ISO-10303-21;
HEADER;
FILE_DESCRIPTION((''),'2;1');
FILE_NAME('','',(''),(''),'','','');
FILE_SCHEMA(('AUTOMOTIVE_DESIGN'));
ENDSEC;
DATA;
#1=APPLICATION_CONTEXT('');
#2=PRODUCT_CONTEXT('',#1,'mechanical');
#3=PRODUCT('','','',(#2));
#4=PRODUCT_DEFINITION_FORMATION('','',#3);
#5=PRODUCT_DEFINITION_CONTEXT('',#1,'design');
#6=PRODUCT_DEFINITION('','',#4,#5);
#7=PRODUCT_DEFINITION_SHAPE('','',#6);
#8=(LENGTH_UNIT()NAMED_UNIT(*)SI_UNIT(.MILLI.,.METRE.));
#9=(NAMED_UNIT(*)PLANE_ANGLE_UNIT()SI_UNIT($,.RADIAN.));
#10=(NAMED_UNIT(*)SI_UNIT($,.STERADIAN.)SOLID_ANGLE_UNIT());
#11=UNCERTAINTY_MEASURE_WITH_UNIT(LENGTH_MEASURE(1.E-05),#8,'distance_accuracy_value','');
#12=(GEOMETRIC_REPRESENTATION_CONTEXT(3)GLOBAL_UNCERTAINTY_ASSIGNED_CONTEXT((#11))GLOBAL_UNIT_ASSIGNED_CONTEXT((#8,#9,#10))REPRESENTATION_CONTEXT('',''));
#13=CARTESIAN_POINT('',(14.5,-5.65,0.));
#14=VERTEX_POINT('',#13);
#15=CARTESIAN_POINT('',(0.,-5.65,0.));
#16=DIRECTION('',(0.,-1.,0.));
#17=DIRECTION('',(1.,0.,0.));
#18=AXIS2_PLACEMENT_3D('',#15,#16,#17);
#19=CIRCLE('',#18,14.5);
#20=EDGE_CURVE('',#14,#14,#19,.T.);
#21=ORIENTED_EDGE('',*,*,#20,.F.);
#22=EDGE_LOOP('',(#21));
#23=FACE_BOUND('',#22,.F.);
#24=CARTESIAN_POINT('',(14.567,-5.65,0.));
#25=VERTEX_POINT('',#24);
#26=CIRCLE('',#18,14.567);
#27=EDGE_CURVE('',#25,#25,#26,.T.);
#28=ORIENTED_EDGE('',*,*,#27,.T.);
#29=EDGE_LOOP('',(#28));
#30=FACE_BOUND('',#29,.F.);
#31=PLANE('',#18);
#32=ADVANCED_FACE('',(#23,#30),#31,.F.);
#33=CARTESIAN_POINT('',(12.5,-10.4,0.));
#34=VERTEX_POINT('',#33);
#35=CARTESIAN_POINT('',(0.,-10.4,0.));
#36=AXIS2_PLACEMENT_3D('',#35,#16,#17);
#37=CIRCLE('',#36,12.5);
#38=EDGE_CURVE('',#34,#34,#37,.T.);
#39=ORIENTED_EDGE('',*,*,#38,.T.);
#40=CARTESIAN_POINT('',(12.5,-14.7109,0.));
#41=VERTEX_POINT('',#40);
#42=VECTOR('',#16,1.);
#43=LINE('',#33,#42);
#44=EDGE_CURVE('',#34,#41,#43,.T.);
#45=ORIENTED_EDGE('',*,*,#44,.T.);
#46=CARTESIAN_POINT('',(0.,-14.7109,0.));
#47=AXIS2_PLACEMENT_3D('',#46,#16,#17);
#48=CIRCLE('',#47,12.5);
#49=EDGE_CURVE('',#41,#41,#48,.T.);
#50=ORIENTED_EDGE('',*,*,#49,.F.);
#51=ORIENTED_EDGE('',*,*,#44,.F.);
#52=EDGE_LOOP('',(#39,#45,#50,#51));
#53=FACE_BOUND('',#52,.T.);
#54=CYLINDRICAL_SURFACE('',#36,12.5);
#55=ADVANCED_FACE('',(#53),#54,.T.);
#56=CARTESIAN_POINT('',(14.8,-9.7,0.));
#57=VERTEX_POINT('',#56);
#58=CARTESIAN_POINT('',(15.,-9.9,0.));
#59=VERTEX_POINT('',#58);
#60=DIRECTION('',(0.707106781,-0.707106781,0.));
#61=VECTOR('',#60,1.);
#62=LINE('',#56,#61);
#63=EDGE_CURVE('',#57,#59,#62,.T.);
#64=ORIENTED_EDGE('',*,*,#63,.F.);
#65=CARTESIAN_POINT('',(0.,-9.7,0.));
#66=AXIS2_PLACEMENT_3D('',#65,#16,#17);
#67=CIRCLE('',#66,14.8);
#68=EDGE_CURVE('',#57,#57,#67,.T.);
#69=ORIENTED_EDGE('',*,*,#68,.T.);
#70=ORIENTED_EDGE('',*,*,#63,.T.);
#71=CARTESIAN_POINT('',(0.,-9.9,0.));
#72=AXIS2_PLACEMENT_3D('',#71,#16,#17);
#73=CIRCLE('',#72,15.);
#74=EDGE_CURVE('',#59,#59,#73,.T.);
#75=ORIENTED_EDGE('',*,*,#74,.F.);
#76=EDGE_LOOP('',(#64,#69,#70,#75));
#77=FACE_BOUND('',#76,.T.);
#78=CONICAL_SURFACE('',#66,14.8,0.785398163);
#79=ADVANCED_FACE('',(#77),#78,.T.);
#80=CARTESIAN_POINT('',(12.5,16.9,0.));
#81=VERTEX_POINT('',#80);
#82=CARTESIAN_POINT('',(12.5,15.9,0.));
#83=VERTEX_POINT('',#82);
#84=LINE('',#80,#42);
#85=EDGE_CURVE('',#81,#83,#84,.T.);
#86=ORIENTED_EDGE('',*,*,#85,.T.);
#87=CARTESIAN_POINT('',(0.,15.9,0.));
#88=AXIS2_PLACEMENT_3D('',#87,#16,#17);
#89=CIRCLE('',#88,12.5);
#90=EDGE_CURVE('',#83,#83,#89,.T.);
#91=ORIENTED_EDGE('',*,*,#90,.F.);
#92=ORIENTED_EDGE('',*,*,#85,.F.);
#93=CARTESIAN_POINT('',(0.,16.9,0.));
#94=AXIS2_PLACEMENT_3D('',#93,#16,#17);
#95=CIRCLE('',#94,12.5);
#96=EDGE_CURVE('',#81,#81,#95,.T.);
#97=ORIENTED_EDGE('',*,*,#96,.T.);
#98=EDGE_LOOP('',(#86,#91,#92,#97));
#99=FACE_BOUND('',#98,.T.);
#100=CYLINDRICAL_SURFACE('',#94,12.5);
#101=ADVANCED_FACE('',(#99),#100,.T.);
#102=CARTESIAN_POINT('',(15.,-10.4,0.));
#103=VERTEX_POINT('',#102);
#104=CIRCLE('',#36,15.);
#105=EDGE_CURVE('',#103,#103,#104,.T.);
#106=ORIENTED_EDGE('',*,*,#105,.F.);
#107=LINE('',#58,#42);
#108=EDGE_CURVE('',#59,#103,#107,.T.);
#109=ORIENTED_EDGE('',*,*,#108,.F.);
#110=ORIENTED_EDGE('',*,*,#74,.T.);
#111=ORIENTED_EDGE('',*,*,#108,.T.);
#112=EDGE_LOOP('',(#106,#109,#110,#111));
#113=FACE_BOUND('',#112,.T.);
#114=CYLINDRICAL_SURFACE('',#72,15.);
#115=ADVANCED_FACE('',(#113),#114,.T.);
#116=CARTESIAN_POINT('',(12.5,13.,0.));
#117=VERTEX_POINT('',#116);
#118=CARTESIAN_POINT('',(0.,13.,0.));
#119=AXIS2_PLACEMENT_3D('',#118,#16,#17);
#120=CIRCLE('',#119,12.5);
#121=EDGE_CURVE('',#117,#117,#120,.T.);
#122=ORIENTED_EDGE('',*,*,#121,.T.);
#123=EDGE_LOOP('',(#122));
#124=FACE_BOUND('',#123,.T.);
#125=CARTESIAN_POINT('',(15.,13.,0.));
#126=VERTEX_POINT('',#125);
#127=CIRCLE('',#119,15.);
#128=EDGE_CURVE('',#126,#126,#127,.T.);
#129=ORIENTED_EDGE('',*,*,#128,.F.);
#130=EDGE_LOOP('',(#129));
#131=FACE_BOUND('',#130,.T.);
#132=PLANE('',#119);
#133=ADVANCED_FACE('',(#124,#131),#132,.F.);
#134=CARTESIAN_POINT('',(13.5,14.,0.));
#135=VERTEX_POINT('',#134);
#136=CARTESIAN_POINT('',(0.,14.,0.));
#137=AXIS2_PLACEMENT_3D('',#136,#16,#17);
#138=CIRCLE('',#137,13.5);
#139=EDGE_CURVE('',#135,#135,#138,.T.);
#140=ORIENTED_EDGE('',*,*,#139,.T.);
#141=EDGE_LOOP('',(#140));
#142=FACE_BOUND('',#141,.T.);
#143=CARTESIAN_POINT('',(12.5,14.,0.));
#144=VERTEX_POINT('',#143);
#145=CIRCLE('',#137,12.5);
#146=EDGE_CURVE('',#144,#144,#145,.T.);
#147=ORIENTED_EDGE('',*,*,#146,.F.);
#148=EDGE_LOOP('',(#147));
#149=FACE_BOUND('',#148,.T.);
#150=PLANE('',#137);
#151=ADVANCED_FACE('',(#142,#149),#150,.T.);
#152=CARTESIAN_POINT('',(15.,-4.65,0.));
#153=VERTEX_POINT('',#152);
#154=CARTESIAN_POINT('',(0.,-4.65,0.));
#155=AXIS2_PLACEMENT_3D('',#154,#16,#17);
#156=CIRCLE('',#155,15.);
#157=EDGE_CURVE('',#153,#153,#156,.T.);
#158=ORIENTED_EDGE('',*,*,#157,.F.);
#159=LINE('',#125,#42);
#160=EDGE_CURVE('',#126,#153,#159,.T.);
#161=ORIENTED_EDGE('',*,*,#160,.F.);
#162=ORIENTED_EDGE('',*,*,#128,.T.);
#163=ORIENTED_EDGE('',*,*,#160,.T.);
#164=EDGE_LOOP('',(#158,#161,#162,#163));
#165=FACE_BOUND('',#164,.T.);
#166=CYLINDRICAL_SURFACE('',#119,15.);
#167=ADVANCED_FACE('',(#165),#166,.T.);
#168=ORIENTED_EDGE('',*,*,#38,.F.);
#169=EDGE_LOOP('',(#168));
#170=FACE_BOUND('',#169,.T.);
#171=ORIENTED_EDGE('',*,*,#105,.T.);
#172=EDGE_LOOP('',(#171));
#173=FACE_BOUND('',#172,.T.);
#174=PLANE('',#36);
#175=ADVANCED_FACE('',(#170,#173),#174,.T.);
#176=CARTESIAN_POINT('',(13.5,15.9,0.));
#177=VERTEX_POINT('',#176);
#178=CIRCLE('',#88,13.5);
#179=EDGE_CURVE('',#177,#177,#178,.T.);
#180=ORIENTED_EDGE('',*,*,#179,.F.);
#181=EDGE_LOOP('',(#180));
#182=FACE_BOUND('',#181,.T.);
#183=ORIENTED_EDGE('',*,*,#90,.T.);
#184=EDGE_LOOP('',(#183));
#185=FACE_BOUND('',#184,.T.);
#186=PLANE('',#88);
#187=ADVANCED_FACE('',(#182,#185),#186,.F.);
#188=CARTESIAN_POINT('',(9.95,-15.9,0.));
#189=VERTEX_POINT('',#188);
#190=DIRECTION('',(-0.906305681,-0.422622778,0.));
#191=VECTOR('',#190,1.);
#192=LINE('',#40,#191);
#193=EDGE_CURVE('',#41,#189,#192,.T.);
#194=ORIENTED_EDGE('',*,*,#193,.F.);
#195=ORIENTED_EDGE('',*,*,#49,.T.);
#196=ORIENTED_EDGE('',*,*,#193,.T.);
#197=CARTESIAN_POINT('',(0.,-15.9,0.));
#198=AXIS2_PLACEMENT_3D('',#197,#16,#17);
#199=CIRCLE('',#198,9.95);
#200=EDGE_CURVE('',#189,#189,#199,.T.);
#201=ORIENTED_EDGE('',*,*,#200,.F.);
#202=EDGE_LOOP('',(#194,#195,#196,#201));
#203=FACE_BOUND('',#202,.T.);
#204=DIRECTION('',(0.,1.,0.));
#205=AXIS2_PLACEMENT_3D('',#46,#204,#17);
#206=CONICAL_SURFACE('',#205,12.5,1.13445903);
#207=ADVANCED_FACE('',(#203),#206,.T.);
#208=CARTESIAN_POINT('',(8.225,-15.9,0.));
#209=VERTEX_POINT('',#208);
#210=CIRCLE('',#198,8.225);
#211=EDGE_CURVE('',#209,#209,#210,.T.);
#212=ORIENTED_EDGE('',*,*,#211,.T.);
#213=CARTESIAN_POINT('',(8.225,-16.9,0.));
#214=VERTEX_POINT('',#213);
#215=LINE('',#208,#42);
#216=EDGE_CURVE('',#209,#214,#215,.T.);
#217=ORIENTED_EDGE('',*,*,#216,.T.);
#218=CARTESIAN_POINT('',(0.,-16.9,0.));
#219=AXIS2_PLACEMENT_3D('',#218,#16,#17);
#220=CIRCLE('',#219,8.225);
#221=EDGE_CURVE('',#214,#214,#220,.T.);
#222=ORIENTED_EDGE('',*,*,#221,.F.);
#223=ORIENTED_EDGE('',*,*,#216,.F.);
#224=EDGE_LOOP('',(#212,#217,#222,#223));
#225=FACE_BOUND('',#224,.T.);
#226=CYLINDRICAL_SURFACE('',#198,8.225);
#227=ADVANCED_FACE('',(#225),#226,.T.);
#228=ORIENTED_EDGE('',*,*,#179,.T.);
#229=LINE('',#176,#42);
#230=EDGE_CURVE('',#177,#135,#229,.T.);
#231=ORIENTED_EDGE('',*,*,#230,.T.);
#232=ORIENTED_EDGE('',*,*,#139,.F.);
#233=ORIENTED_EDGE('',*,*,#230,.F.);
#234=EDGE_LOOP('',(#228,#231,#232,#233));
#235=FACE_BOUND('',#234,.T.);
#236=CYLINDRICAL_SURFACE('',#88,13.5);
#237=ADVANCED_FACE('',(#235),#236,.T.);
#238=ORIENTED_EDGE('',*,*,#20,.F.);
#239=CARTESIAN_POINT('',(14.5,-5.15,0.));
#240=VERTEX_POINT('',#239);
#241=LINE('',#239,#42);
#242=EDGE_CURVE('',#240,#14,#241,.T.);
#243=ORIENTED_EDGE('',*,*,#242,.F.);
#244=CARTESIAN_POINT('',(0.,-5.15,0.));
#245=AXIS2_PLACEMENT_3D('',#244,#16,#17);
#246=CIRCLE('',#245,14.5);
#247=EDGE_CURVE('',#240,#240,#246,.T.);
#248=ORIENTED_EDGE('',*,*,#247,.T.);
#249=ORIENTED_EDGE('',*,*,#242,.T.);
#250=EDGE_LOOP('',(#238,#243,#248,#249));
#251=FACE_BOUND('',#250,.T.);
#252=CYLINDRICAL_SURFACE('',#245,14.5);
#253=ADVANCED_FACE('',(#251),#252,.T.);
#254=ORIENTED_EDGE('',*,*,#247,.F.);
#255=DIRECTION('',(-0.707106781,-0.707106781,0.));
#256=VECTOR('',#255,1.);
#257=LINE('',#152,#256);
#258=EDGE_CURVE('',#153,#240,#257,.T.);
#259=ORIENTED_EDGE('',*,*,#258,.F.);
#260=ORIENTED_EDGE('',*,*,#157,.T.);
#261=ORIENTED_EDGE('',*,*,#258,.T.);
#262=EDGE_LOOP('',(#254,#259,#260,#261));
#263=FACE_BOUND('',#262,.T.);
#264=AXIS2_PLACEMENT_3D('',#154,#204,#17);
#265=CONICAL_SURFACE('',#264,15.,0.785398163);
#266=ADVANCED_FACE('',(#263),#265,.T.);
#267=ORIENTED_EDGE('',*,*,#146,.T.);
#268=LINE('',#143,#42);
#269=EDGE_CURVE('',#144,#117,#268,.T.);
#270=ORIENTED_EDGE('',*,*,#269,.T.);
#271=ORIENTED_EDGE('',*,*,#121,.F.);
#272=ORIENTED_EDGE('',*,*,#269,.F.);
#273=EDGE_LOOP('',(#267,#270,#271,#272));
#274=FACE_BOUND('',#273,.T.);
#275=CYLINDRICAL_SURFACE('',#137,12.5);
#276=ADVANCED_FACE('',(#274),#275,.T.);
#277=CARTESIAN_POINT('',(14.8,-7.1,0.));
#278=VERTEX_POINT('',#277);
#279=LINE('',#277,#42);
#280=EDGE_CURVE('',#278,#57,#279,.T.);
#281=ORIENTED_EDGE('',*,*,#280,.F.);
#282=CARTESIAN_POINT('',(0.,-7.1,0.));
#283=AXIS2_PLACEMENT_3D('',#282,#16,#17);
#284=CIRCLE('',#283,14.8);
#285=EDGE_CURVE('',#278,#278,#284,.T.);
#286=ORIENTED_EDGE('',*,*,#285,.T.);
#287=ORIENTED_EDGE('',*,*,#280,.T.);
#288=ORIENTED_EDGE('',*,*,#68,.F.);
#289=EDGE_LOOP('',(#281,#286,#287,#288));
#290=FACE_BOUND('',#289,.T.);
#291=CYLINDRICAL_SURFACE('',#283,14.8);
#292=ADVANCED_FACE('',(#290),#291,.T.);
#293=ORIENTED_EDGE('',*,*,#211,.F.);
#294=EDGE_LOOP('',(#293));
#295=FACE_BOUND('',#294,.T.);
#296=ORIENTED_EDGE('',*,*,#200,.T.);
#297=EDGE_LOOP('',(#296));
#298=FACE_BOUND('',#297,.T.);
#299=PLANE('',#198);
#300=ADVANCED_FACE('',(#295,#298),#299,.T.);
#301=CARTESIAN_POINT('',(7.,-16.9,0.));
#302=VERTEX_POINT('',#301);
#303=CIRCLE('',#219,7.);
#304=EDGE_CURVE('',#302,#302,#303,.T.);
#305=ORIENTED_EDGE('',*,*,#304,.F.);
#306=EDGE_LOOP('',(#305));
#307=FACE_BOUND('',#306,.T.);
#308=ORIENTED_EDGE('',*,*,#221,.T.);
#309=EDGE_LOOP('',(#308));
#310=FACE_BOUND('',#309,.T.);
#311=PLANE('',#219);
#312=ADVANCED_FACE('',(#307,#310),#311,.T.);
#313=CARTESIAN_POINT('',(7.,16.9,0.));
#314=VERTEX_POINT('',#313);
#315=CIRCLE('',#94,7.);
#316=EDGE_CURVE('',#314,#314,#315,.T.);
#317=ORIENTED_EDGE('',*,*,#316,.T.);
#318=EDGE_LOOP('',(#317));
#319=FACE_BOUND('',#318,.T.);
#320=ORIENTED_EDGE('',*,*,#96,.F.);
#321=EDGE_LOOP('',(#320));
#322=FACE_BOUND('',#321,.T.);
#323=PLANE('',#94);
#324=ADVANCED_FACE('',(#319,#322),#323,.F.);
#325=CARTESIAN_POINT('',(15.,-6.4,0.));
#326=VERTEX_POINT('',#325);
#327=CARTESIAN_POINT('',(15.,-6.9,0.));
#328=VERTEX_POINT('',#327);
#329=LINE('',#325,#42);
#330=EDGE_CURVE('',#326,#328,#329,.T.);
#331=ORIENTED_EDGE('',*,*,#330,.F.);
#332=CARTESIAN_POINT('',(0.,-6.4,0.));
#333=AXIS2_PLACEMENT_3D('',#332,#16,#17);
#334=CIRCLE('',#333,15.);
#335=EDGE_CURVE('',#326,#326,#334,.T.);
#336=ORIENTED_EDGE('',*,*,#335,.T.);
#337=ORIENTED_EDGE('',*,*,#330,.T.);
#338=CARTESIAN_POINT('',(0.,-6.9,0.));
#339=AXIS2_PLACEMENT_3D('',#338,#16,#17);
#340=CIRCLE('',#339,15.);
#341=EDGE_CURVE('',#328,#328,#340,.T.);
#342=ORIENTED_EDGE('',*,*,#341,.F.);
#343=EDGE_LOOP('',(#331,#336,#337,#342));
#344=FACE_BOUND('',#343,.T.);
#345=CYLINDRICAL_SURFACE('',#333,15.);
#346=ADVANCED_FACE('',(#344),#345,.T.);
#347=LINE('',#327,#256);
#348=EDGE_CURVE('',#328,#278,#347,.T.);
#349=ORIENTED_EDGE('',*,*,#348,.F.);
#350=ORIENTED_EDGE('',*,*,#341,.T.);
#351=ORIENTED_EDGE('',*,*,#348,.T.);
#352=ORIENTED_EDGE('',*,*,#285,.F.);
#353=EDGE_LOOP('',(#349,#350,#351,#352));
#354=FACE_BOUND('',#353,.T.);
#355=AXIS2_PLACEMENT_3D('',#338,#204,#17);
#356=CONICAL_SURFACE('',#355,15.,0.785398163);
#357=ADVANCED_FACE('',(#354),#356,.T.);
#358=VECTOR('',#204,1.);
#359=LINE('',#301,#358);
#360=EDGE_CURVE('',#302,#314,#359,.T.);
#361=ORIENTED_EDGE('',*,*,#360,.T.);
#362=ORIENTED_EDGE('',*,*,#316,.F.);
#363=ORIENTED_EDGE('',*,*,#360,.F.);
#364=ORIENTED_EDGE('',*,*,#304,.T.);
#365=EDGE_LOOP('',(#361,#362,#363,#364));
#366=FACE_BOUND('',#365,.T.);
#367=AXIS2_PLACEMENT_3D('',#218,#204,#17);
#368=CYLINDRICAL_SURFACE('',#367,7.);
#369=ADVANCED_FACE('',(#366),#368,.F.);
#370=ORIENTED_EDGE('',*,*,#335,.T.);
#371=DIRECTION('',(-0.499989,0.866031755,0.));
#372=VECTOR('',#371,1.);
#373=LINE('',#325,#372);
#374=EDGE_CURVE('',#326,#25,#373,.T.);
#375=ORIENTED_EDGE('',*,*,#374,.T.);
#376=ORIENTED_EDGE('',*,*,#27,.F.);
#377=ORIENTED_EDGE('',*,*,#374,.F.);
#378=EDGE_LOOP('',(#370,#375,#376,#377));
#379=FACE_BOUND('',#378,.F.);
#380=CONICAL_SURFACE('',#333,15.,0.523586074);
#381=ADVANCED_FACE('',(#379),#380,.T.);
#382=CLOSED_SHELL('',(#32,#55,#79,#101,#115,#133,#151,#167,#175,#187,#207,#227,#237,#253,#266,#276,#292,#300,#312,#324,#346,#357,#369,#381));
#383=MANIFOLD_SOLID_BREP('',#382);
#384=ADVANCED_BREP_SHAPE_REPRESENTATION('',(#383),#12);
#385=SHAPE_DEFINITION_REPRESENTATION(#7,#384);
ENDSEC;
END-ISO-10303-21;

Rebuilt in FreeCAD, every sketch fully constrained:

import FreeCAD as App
import Part
import Sketcher
Q = App.Units.Quantity

doc = App.newDocument("Part")
body = doc.addObject("PartDesign::Body", "Body")

# Sketch on XY plane
sketch1 = body.newObject("Sketcher::SketchObject", "Sketch")
sketch1.AttachmentSupport = (doc.getObject("XY_Plane"), [""])
sketch1.MapMode = "FlatFace"
sketch1.addGeometry(Part.LineSegment(App.Vector(7, 16.9, 0), App.Vector(7, -16.9, 0)), False)
sketch1.addGeometry(Part.LineSegment(App.Vector(7, -16.9, 0), App.Vector(8.22, -16.9, 0)), False)
sketch1.addGeometry(Part.LineSegment(App.Vector(8.22, -16.9, 0), App.Vector(8.22, -15.9, 0)), False)
sketch1.addGeometry(Part.LineSegment(App.Vector(8.22, -15.9, 0), App.Vector(9.95, -15.9, 0)), False)
sketch1.addGeometry(Part.LineSegment(App.Vector(9.95, -15.9, 0), App.Vector(12.5, -14.71, 0)), False)
sketch1.addGeometry(Part.LineSegment(App.Vector(12.5, -14.71, 0), App.Vector(12.5, -10.4, 0)), False)
sketch1.addGeometry(Part.LineSegment(App.Vector(12.5, -10.4, 0), App.Vector(15, -10.4, 0)), False)
sketch1.addGeometry(Part.LineSegment(App.Vector(15, -10.4, 0), App.Vector(15, -9.9, 0)), False)
sketch1.addGeometry(Part.LineSegment(App.Vector(15, -9.9, 0), App.Vector(14.8, -9.7, 0)), False)
sketch1.addGeometry(Part.LineSegment(App.Vector(14.8, -9.7, 0), App.Vector(14.8, -7.1, 0)), False)
sketch1.addGeometry(Part.LineSegment(App.Vector(14.8, -7.1, 0), App.Vector(15, -6.9, 0)), False)
sketch1.addGeometry(Part.LineSegment(App.Vector(15, -6.9, 0), App.Vector(15, -6.4, 0)), False)
sketch1.addGeometry(Part.LineSegment(App.Vector(15, -6.4, 0), App.Vector(14.57, -5.65, 0)), False)
sketch1.addGeometry(Part.LineSegment(App.Vector(14.57, -5.65, 0), App.Vector(14.5, -5.65, 0)), False)
sketch1.addGeometry(Part.LineSegment(App.Vector(14.5, -5.65, 0), App.Vector(14.5, -5.15, 0)), False)
sketch1.addGeometry(Part.LineSegment(App.Vector(14.5, -5.15, 0), App.Vector(15, -4.65, 0)), False)
sketch1.addGeometry(Part.LineSegment(App.Vector(15, -4.65, 0), App.Vector(15, 13, 0)), False)
sketch1.addGeometry(Part.LineSegment(App.Vector(15, 13, 0), App.Vector(12.5, 13, 0)), False)
sketch1.addGeometry(Part.LineSegment(App.Vector(12.5, 13, 0), App.Vector(12.5, 14, 0)), False)
sketch1.addGeometry(Part.LineSegment(App.Vector(12.5, 14, 0), App.Vector(13.5, 14, 0)), False)
sketch1.addGeometry(Part.LineSegment(App.Vector(13.5, 14, 0), App.Vector(13.5, 15.9, 0)), False)
sketch1.addGeometry(Part.LineSegment(App.Vector(13.5, 15.9, 0), App.Vector(12.5, 15.9, 0)), False)
sketch1.addGeometry(Part.LineSegment(App.Vector(12.5, 15.9, 0), App.Vector(12.5, 16.9, 0)), False)
sketch1.addGeometry(Part.LineSegment(App.Vector(12.5, 16.9, 0), App.Vector(7, 16.9, 0)), False)
sketch1.addConstraint(Sketcher.Constraint("Coincident", 0, 2, 1, 1))
sketch1.addConstraint(Sketcher.Constraint("Coincident", 1, 2, 2, 1))
sketch1.addConstraint(Sketcher.Constraint("Coincident", 2, 2, 3, 1))
sketch1.addConstraint(Sketcher.Constraint("Coincident", 3, 2, 4, 1))
sketch1.addConstraint(Sketcher.Constraint("Coincident", 4, 2, 5, 1))
sketch1.addConstraint(Sketcher.Constraint("Coincident", 5, 2, 6, 1))
sketch1.addConstraint(Sketcher.Constraint("Coincident", 6, 2, 7, 1))
sketch1.addConstraint(Sketcher.Constraint("Coincident", 7, 2, 8, 1))
sketch1.addConstraint(Sketcher.Constraint("Coincident", 8, 2, 9, 1))
sketch1.addConstraint(Sketcher.Constraint("Coincident", 9, 2, 10, 1))
sketch1.addConstraint(Sketcher.Constraint("Coincident", 10, 2, 11, 1))
sketch1.addConstraint(Sketcher.Constraint("Coincident", 11, 2, 12, 1))
sketch1.addConstraint(Sketcher.Constraint("Coincident", 12, 2, 13, 1))
sketch1.addConstraint(Sketcher.Constraint("Coincident", 13, 2, 14, 1))
sketch1.addConstraint(Sketcher.Constraint("Coincident", 14, 2, 15, 1))
sketch1.addConstraint(Sketcher.Constraint("Coincident", 15, 2, 16, 1))
sketch1.addConstraint(Sketcher.Constraint("Coincident", 16, 2, 17, 1))
sketch1.addConstraint(Sketcher.Constraint("Coincident", 17, 2, 18, 1))
sketch1.addConstraint(Sketcher.Constraint("Coincident", 18, 2, 19, 1))
sketch1.addConstraint(Sketcher.Constraint("Coincident", 19, 2, 20, 1))
sketch1.addConstraint(Sketcher.Constraint("Coincident", 20, 2, 21, 1))
sketch1.addConstraint(Sketcher.Constraint("Coincident", 21, 2, 22, 1))
sketch1.addConstraint(Sketcher.Constraint("Coincident", 22, 2, 23, 1))
sketch1.addConstraint(Sketcher.Constraint("Coincident", 23, 2, 0, 1))
sketch1.addConstraint(Sketcher.Constraint("Vertical", 0))
sketch1.addConstraint(Sketcher.Constraint("Horizontal", 1))
sketch1.addConstraint(Sketcher.Constraint("Vertical", 2))
sketch1.addConstraint(Sketcher.Constraint("Horizontal", 3))
sketch1.addConstraint(Sketcher.Constraint("Vertical", 5))
sketch1.addConstraint(Sketcher.Constraint("Horizontal", 6))
sketch1.addConstraint(Sketcher.Constraint("Vertical", 7))
sketch1.addConstraint(Sketcher.Constraint("Vertical", 9))
sketch1.addConstraint(Sketcher.Constraint("Vertical", 11))
sketch1.addConstraint(Sketcher.Constraint("Horizontal", 13))
sketch1.addConstraint(Sketcher.Constraint("Vertical", 14))
sketch1.addConstraint(Sketcher.Constraint("Vertical", 16))
sketch1.addConstraint(Sketcher.Constraint("Horizontal", 17))
sketch1.addConstraint(Sketcher.Constraint("Vertical", 18))
sketch1.addConstraint(Sketcher.Constraint("Horizontal", 19))
sketch1.addConstraint(Sketcher.Constraint("Vertical", 20))
sketch1.addConstraint(Sketcher.Constraint("Horizontal", 21))
sketch1.addConstraint(Sketcher.Constraint("Vertical", 22))
sketch1.addConstraint(Sketcher.Constraint("Horizontal", 23))
sketch1.addConstraint(Sketcher.Constraint("Perpendicular", 8, 10))
sketch1.addConstraint(Sketcher.Constraint("Parallel", 10, 15))
sketch1.addConstraint(Sketcher.Constraint("Vertical", 7, 2, 10, 2))
sketch1.addConstraint(Sketcher.Constraint("Vertical", 11, 2, 15, 2))
sketch1.addConstraint(Sketcher.Constraint("Vertical", 5, 2, 17, 2))
sketch1.addConstraint(Sketcher.Constraint("Vertical", 18, 2, 21, 2))
sketch1.addConstraint(Sketcher.Constraint("Equal", 21, 2))
sketch1.addConstraint(Sketcher.Constraint("Equal", 7, 11))
sketch1.addConstraint(Sketcher.Constraint("Equal", 11, 14))
sketch1.addConstraint(Sketcher.Constraint("Equal", 2, 18))
sketch1.addConstraint(Sketcher.Constraint("Equal", 18, 22))
sketch1.addConstraint(Sketcher.Constraint("Equal", 8, 10))
sketch1.addConstraint(Sketcher.Constraint("DistanceX", 19, 1, 19, 2, Q("1 mm")))
sketch1.addConstraint(Sketcher.Constraint("Angle", 4, Q("25.0003 deg")))
sketch1.addConstraint(Sketcher.Constraint("DistanceY", 7, 1, 7, 2, Q("0.5 mm")))
sketch1.addConstraint(Sketcher.Constraint("DistanceY", 9, 1, 9, 2, Q("2.6 mm")))
sketch1.addConstraint(Sketcher.Constraint("DistanceX", -1, 1, 0, 2, Q("7 mm")))
sketch1.addConstraint(Sketcher.Constraint("DistanceX", -1, 1, 6, 2, Q("15 mm")))
sketch1.addConstraint(Sketcher.Constraint("DistanceY", 12, 2, 15, 2, Q("1 mm")))
sketch1.addConstraint(Sketcher.Constraint("DistanceX", 19, 2, 14, 2, Q("1 mm")))
sketch1.addConstraint(Sketcher.Constraint("DistanceX", -1, 1, 8, 2, Q("14.8 mm")))
sketch1.addConstraint(Sketcher.Constraint("DistanceY", 17, 2, 22, 2, Q("3.9 mm")))
sketch1.addConstraint(Sketcher.Constraint("DistanceX", -1, 1, 3, 2, Q("9.95 mm")))
sketch1.addConstraint(Sketcher.Constraint("Angle", 12, Q("119.9993 deg")))
sketch1.addConstraint(Sketcher.Constraint("DistanceY", 11, 2, 12, 2, Q("0.75 mm")))
sketch1.addConstraint(Sketcher.Constraint("DistanceY", 0, 2, 0, 1, Q("33.8 mm")))
sketch1.addConstraint(Sketcher.Constraint("DistanceX", -1, 1, 1, 2, Q("8.225 mm")))
sketch1.addConstraint(Sketcher.Constraint("DistanceY", -1, 1, 16, 2, Q("13 mm")))
sketch1.addConstraint(Sketcher.Constraint("DistanceY", 3, 2, 7, 2, Q("6 mm")))
revolution = body.newObject("PartDesign::Revolution", "Revolution")
revolution.Profile = sketch1
revolution.ReferenceAxis = (sketch1, ["V_Axis"])
revolution.Angle = 360

doc.recompute()
